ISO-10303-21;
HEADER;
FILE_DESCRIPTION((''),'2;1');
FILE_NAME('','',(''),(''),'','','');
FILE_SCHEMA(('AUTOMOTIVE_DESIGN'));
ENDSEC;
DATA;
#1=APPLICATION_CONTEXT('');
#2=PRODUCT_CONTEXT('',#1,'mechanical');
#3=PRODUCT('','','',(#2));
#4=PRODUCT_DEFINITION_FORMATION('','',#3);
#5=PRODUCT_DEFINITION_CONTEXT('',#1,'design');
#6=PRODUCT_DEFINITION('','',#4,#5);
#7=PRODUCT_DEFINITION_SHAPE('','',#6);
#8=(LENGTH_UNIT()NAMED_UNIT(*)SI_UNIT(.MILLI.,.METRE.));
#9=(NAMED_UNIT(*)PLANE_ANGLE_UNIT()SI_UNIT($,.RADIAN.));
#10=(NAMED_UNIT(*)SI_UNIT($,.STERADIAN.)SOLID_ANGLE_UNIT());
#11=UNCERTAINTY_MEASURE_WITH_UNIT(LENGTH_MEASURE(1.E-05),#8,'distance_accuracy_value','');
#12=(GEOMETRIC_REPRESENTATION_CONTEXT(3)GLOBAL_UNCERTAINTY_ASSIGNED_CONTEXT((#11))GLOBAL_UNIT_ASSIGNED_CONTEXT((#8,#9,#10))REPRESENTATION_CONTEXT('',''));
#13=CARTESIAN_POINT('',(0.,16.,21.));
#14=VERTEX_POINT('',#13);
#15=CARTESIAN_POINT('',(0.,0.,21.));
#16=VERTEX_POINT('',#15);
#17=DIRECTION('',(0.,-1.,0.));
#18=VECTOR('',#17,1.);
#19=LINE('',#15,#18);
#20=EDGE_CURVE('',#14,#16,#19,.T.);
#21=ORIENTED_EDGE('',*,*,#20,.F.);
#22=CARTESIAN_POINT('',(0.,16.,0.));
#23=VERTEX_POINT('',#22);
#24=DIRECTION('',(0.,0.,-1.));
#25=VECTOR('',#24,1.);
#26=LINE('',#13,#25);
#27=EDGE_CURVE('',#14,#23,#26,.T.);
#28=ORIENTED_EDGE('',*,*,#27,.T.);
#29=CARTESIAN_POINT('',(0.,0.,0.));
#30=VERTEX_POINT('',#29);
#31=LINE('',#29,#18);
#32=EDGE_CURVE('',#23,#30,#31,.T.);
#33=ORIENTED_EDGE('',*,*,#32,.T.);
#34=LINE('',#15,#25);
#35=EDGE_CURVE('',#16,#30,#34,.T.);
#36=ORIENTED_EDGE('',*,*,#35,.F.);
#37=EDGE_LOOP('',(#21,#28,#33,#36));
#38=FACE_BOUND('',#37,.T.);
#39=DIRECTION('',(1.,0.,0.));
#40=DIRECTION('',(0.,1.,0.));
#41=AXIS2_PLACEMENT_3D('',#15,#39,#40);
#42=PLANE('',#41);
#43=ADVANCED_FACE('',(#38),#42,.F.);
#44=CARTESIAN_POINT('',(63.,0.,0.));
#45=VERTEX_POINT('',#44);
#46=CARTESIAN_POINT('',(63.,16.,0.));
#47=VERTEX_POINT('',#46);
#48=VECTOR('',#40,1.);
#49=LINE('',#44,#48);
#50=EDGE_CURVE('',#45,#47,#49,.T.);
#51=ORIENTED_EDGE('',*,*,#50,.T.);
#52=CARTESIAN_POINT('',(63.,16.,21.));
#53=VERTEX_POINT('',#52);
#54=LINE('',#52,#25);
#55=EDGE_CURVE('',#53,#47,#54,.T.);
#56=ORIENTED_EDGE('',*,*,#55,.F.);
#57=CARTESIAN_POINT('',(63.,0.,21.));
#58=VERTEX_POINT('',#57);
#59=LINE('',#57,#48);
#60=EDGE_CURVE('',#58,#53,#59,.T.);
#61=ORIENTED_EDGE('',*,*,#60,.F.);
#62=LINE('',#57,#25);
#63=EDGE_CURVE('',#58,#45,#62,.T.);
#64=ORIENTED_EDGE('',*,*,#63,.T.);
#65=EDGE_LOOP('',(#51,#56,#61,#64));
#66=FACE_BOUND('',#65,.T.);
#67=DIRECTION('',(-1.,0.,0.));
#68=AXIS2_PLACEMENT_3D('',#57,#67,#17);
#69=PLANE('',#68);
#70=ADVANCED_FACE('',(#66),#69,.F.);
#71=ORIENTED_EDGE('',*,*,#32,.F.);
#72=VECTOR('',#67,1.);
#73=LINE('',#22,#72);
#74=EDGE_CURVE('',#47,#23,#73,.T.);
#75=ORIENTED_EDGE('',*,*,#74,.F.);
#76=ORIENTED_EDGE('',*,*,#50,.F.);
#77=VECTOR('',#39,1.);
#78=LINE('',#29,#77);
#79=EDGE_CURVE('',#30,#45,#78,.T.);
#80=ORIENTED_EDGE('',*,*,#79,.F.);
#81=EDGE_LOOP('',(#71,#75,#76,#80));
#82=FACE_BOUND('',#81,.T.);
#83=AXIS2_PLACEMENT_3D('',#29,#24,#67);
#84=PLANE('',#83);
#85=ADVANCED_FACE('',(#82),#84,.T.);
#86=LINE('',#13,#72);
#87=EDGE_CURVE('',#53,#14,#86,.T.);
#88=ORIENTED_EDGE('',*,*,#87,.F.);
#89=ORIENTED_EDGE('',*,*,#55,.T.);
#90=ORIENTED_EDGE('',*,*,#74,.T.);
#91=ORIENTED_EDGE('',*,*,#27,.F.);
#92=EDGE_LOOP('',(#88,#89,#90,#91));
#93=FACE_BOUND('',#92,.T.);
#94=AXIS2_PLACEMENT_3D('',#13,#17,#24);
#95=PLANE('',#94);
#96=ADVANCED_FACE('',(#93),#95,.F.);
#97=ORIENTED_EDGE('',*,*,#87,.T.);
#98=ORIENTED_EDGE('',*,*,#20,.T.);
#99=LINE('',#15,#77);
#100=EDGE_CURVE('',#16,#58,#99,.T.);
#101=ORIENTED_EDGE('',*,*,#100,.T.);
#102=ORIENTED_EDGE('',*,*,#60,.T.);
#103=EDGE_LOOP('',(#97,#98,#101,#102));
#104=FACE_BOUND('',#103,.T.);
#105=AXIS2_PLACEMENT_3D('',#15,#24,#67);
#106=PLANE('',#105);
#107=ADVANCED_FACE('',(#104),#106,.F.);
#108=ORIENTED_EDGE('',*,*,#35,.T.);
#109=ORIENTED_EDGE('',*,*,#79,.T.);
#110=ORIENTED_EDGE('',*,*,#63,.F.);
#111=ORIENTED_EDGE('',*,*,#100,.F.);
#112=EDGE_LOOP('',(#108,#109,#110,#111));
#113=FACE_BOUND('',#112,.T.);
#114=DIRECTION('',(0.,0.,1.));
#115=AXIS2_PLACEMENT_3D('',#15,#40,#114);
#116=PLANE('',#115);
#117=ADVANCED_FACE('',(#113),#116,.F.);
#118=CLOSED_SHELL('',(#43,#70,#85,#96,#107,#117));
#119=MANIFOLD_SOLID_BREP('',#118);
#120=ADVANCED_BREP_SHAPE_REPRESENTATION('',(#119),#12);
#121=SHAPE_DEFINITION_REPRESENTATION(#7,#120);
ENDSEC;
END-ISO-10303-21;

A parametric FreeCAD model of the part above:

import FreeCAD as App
import Part
import Sketcher

doc = App.newDocument("Part")
body = doc.addObject("PartDesign::Body", "Body")

sketch1 = body.newObject("Sketcher::SketchObject", "Sketch")
sketch1.AttachmentSupport = (doc.getObject("XY_Plane"), [""])
sketch1.MapMode = "FlatFace"
sketch1.addGeometry(Part.LineSegment(App.Vector(0, 16, 0), App.Vector(0, 0, 0)), False)
sketch1.addGeometry(Part.LineSegment(App.Vector(0, 0, 0), App.Vector(63, 0, 0)), False)
sketch1.addGeometry(Part.LineSegment(App.Vector(63, 0, 0), App.Vector(63, 16, 0)), False)
sketch1.addGeometry(Part.LineSegment(App.Vector(63, 16, 0), App.Vector(0, 16, 0)), False)
sketch1.addConstraint(Sketcher.Constraint("Coincident", 0, 2, 1, 1))
sketch1.addConstraint(Sketcher.Constraint("Coincident", 1, 2, 2, 1))
sketch1.addConstraint(Sketcher.Constraint("Coincident", 2, 2, 3, 1))
sketch1.addConstraint(Sketcher.Constraint("Coincident", 3, 2, 0, 1))
sketch1.addConstraint(Sketcher.Constraint("Vertical", 0))
sketch1.addConstraint(Sketcher.Constraint("Horizontal", 1))
sketch1.addConstraint(Sketcher.Constraint("Vertical", 2))
sketch1.addConstraint(Sketcher.Constraint("Horizontal", 3))
sketch1.addConstraint(Sketcher.Constraint("Coincident", 0, 2, -1, 1))
sketch1.addConstraint(Sketcher.Constraint("DistanceX", 1, 1, 1, 2, 63.0))
sketch1.addConstraint(Sketcher.Constraint("DistanceY", 0, 2, 0, 1, 16.0))
pad1 = body.newObject("PartDesign::Pad", "Pad")
pad1.Profile = sketch1
pad1.Length = 21

doc.recompute()
